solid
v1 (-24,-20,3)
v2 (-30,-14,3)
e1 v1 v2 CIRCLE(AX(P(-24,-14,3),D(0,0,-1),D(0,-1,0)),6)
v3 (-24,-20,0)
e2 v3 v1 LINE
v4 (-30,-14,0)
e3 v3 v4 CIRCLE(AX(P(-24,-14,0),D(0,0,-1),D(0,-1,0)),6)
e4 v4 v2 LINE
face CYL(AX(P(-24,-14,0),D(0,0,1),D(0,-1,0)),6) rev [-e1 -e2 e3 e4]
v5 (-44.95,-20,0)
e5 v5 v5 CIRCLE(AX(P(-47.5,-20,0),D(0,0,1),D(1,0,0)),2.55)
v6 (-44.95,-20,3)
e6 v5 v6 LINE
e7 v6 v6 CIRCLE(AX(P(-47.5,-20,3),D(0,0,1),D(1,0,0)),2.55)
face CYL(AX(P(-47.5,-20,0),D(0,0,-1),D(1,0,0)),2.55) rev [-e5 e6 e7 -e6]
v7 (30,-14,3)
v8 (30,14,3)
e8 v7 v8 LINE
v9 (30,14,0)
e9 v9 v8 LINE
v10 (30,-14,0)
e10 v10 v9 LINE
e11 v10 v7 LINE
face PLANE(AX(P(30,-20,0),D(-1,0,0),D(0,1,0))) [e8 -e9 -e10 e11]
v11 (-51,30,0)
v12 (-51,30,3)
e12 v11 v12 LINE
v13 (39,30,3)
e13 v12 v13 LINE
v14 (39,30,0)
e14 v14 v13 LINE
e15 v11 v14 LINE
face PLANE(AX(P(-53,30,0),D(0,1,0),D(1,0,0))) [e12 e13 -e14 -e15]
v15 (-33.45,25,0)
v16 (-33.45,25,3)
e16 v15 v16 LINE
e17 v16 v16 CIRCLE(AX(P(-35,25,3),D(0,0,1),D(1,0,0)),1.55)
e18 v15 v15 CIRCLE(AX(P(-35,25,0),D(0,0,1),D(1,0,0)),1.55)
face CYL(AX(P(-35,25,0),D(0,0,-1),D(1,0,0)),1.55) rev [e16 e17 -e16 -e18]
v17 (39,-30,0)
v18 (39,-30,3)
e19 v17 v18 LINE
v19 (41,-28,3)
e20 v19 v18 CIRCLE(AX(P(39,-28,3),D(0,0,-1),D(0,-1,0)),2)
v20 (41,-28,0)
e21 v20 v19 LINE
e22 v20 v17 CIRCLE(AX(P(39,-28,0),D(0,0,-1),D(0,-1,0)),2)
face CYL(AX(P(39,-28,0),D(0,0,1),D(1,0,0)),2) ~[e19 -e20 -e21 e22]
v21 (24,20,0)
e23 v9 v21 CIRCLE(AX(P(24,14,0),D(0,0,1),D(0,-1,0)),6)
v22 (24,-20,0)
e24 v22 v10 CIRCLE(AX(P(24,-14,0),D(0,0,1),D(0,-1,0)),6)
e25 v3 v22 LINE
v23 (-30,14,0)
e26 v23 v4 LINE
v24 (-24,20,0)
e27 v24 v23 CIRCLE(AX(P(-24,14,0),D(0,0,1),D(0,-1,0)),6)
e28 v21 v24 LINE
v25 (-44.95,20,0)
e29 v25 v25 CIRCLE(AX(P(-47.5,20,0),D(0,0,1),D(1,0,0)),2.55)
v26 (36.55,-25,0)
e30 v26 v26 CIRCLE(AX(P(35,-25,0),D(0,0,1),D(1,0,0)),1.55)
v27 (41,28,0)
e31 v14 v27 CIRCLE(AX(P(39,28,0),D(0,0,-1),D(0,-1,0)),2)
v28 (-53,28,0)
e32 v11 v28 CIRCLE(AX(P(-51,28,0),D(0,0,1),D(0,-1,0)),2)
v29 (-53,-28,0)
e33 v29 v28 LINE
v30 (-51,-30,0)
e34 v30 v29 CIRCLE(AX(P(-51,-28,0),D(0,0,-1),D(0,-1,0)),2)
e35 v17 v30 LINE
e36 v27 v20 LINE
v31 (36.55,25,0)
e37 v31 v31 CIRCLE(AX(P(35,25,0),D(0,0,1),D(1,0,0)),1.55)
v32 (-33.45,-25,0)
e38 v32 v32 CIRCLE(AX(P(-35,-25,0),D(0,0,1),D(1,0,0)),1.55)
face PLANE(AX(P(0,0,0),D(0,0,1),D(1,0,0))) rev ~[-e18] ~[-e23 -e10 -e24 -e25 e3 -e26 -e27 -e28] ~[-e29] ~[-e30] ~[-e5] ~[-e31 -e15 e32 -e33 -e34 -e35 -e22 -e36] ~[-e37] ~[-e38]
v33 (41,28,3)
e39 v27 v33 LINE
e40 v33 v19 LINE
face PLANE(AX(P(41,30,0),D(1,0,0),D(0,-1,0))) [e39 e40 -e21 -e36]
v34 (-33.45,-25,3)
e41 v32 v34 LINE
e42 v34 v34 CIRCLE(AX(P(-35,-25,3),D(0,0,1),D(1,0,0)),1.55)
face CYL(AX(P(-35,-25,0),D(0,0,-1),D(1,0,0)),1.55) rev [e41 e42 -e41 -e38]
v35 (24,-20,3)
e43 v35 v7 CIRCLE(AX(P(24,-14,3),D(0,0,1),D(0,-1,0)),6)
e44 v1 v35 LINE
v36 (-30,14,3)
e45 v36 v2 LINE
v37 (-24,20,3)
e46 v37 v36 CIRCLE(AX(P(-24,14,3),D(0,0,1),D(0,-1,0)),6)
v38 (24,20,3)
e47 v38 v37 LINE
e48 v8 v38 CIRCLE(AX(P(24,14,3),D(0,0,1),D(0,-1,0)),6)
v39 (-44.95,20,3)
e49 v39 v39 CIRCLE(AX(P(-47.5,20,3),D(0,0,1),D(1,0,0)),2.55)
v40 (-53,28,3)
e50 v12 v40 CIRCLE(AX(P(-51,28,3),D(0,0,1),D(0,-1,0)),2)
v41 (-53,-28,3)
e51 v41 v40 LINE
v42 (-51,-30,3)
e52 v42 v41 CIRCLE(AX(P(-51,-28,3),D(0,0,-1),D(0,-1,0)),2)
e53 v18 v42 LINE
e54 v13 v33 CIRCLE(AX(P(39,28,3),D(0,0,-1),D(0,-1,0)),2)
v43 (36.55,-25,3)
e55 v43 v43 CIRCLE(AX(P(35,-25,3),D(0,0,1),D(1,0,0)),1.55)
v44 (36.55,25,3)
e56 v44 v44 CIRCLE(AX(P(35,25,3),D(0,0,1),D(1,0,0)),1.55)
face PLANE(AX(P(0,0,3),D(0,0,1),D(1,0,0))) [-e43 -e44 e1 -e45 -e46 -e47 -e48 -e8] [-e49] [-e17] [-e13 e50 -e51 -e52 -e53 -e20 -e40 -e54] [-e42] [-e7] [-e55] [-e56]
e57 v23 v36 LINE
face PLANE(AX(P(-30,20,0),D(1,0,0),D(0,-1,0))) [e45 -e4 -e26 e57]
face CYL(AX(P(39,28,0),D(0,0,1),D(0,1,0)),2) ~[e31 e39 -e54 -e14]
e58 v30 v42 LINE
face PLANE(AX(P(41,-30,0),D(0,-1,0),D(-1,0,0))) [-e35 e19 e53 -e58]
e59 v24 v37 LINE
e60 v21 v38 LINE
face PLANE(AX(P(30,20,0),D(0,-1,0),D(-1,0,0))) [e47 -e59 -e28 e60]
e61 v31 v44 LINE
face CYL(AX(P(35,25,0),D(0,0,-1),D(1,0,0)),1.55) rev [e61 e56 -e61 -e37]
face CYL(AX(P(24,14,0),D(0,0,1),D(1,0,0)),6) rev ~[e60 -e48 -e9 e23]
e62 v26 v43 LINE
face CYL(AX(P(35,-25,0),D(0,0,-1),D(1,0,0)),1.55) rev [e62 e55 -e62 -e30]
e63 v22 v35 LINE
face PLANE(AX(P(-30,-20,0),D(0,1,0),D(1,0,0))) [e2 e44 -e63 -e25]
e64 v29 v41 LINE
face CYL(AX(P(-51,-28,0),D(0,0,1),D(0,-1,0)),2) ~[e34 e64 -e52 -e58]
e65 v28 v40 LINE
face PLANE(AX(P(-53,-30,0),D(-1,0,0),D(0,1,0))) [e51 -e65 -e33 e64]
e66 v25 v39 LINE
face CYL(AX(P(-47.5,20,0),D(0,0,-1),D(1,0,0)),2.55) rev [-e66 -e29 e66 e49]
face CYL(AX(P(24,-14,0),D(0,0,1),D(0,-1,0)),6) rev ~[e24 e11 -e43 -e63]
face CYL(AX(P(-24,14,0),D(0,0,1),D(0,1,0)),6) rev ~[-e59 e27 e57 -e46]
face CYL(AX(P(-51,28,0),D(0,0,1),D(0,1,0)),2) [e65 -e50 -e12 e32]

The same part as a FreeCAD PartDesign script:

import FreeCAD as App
import Part
import Sketcher

V = App.Vector


def edges_at(feature, points):
    """Names of the edges that pass closest to the given points."""
    edges = feature.Shape.Edges
    near = lambda p: min(range(len(edges)), key=lambda i: edges[i].distToShape(Part.Vertex(*p))[0])
    return sorted({f"Edge{near(p) + 1}" for p in points})


def add_polygon(sketch, points):
    """Adds a closed chain of lines whose ends are joined by coincident constraints."""
    first, n = sketch.GeometryCount, len(points)
    for a, b in zip(points, points[1:] + points[:1]):
        sketch.addGeometry(Part.LineSegment(App.Vector(*a, 0), App.Vector(*b, 0)), False)
    for i in range(n):
        sketch.addConstraint(Sketcher.Constraint("Coincident", first + i, 2, first + (i + 1) % n, 1))

doc = App.newDocument("Part")
body = doc.addObject("PartDesign::Body", "Body")

# Sketch on XY plane
sketch1 = doc.addObject("Sketcher::SketchObject", "Sketch")
body.addObject(sketch1)
sketch1.AttachmentSupport = (doc.XY_Plane, [""])
sketch1.MapMode = "FlatFace"
add_polygon(sketch1, [(41, 30), (-53, 30), (-53, -30), (41, -30)])  # lines 0-3
sketch1.addGeometry(Part.Circle(V(-35, -25, 0), V(0, 0, 1), 1.55), False)  # 4
sketch1.addGeometry(Part.Circle(V(-47.5, -20, 0), V(0, 0, 1), 2.55), False)  # 5
sketch1.addGeometry(Part.Circle(V(35, -25, 0), V(0, 0, 1), 1.55), False)  # 6
sketch1.addGeometry(Part.Circle(V(-47.5, 20, 0), V(0, 0, 1), 2.55), False)  # 7
sketch1.addGeometry(Part.Circle(V(-35, 25, 0), V(0, 0, 1), 1.55), False)  # 8
add_polygon(sketch1, [(30, -20), (-30, -20), (-30, 20), (30, 20)])  # lines 9-12
sketch1.addGeometry(Part.Circle(V(35, 25, 0), V(0, 0, 1), 1.55), False)  # 13
sketch1.addConstraint(Sketcher.Constraint("Horizontal", 0))
sketch1.addConstraint(Sketcher.Constraint("Vertical", 1))
sketch1.addConstraint(Sketcher.Constraint("Horizontal", 2))
sketch1.addConstraint(Sketcher.Constraint("Vertical", 3))
sketch1.addConstraint(Sketcher.Constraint("Horizontal", 9))
sketch1.addConstraint(Sketcher.Constraint("Vertical", 10))
sketch1.addConstraint(Sketcher.Constraint("Horizontal", 11))
sketch1.addConstraint(Sketcher.Constraint("Vertical", 12))
sketch1.addConstraint(Sketcher.Constraint("Equal", 4, 6))
sketch1.addConstraint(Sketcher.Constraint("Equal", 5, 7))
sketch1.addConstraint(Sketcher.Constraint("Equal", 6, 8))
sketch1.addConstraint(Sketcher.Constraint("Equal", 8, 13))
sketch1.addConstraint(Sketcher.Constraint("Symmetric", 6, 3, 8, 3, -1, 1))
sketch1.addConstraint(Sketcher.Constraint("Symmetric", 4, 3, 13, 3, -1, 1))
sketch1.addConstraint(Sketcher.Constraint("Symmetric", 9, 2, 11, 2, -1, 1))
sketch1.addConstraint(Sketcher.Constraint("Symmetric", 4, 3, 6, 3, -2))
sketch1.addConstraint(Sketcher.Constraint("Symmetric", 5, 3, 7, 3, -1))
sketch1.addConstraint(Sketcher.Constraint("Horizontal", 5, 3, 9, 2))
sketch1.addConstraint(Sketcher.Constraint("Equal", 11, 1))
sketch1.addConstraint(Sketcher.Constraint("Diameter", 4, 3.1))
sketch1.addConstraint(Sketcher.Constraint("Diameter", 5, 5.1))
sketch1.addConstraint(Sketcher.Constraint("DistanceX", 9, 2, 9, 1, 60.0))
sketch1.addConstraint(Sketcher.Constraint("DistanceY", 10, 1, 10, 2, 40.0))
sketch1.addConstraint(Sketcher.Constraint("DistanceY", 4, 3, 8, 3, 50.0))
sketch1.addConstraint(Sketcher.Constraint("DistanceY", 5, 3, 0, 2, 50.0))
sketch1.addConstraint(Sketcher.Constraint("DistanceX", 0, 2, 7, 3, 5.5))
sketch1.addConstraint(Sketcher.Constraint("DistanceX", 0, 2, 0, 1, 94.0))
sketch1.addConstraint(Sketcher.Constraint("DistanceX", 4, 3, -1, 1, 35.0))
sketch1.addConstraint(Sketcher.Constraint("DistanceX", 0, 2, -1, 1, 53.0))
pad1 = doc.addObject("PartDesign::Pad", "Pad")
body.addObject(pad1)
pad1.Profile = sketch1
pad1.Length = 3
doc.recompute()

fillet = doc.addObject("PartDesign::Fillet", "Fillet")
body.addObject(fillet)
fillet.Base = (pad1, edges_at(pad1, [
    (-30, 20, 1.5),
    (-30, -20, 1.5),
    (30, -20, 1.5),
    (30, 20, 1.5),
]))
fillet.Radius = 6
doc.recompute()

fillet2 = doc.addObject("PartDesign::Fillet", "Fillet001")
body.addObject(fillet2)
fillet2.Base = (fillet, edges_at(fillet, [
    (41, 30, 1.5),
    (-53, 30, 1.5),
    (-53, -30, 1.5),
    (41, -30, 1.5),
]))
fillet2.Radius = 2

doc.recompute()
